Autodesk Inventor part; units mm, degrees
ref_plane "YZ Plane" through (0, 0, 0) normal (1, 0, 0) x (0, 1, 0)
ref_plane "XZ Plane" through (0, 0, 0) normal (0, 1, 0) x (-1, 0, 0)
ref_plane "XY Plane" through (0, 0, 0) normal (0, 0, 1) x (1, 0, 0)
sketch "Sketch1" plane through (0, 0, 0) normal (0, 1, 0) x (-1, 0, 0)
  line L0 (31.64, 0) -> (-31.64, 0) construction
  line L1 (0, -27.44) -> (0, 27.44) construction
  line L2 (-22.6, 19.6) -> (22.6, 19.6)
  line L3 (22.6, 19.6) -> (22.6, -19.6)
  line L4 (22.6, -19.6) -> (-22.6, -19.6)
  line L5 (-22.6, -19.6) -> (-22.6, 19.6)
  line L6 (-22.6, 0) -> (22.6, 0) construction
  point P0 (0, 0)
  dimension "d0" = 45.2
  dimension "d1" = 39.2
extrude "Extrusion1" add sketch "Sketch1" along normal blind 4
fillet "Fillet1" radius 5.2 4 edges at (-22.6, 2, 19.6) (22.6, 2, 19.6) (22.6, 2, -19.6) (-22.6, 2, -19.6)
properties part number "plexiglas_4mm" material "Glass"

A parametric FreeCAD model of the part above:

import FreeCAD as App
import Part
import Sketcher
from FreeCAD import Vector
Q = App.Units.Quantity


def edges_at(feature, points):
    """Names of the edges that pass closest to the given points."""
    edges = feature.Shape.Edges
    near = lambda p: min(range(len(edges)), key=lambda i: edges[i].distToShape(Part.Vertex(*p))[0])
    return sorted({f"Edge{near(p) + 1}" for p in points})

doc = App.newDocument("Part")
body = doc.addObject("PartDesign::Body", "Body")

sketch1 = doc.addObject("Sketcher::SketchObject", "Sketch")
body.addObject(sketch1)
sketch1.AttachmentSupport = (doc.XZ_Plane, [""])
sketch1.MapMode = "FlatFace"
sketch1.addGeometry([
    Part.LineSegment(Vector(-23, 20, 0), Vector(23, 20, 0)),
    Part.LineSegment(Vector(23, 20, 0), Vector(23, -20, 0)),
    Part.LineSegment(Vector(23, -20, 0), Vector(-23, -20, 0)),
    Part.LineSegment(Vector(-23, -20, 0), Vector(-23, 20, 0)),
], False)
sketch1.addConstraint([
    Sketcher.Constraint("Coincident", 0, 2, 1, 1),
    Sketcher.Constraint("Coincident", 1, 2, 2, 1),
    Sketcher.Constraint("Coincident", 2, 2, 3, 1),
    Sketcher.Constraint("Coincident", 3, 2, 0, 1),
    Sketcher.Constraint("Horizontal", 0),
    Sketcher.Constraint("Vertical", 1),
    Sketcher.Constraint("Horizontal", 2),
    Sketcher.Constraint("Vertical", 3),
    Sketcher.Constraint("Symmetric", 0, 2, 2, 2, -1, 1),
    Sketcher.Constraint("DistanceX", 0, 1, 0, 2, Q("45.2 mm")),
    Sketcher.Constraint("DistanceY", 1, 2, 1, 1, Q("39.2 mm")),
])
pad1 = doc.addObject("PartDesign::Pad", "Pad")
body.addObject(pad1)
pad1.Profile = sketch1
pad1.Length = 4
pad1.Reversed = True
doc.recompute()

fillet = doc.addObject("PartDesign::Fillet", "Fillet")
body.addObject(fillet)
fillet.Base = (pad1, edges_at(pad1, [
    (-22.6, 2, 19.6),
    (22.6, 2, 19.6),
    (22.6, 2, -19.6),
    (-22.6, 2, -19.6),
]))
fillet.Radius = 5.2

doc.recompute()
